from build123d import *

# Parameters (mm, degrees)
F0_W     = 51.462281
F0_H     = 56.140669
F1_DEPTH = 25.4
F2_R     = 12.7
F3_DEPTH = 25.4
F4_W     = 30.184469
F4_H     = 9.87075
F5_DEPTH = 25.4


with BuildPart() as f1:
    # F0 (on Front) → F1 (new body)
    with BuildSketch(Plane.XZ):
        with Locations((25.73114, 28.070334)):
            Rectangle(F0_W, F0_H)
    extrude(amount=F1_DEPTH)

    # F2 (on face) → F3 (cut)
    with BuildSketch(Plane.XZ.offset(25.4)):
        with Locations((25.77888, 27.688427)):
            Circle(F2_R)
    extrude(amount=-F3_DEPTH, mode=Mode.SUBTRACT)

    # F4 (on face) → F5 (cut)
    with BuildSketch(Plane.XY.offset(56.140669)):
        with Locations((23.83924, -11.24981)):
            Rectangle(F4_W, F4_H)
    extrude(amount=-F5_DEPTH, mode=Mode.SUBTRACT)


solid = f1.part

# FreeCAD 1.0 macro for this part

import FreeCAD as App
import Part
import Sketcher
Q = App.Units.Quantity

doc = App.newDocument("Part")
params = doc.addObject("Spreadsheet::Sheet", "Params")
for row, (alias, value) in enumerate([
    ("pad1_length", "1 in"),
    ("sketch2_diameter", "1 in"),
    ("pocket1_length", "1 in"),
    ("pocket2_length", "1 in"),
], start=1):
    params.set(f"A{row}", alias)
    params.set(f"B{row}", "=" + value)
    params.setAlias(f"B{row}", alias)

body = doc.addObject("PartDesign::Body", "Body")

# Sketch on XZ plane
sketch1 = body.newObject("Sketcher::SketchObject", "Sketch")
sketch1.AttachmentSupport = (doc.getObject("XZ_Plane"), [""])
sketch1.MapMode = "FlatFace"
sketch1.addGeometry(Part.LineSegment(App.Vector(0, 56.140668, 0), App.Vector(0, 0, 0)), False)
sketch1.addGeometry(Part.LineSegment(App.Vector(0, 0, 0), App.Vector(51.46228, 0, 0)), False)
sketch1.addGeometry(Part.LineSegment(App.Vector(51.46228, 0, 0), App.Vector(51.46228, 56.140668, 0)), False)
sketch1.addGeometry(Part.LineSegment(App.Vector(51.46228, 56.140668, 0), App.Vector(0, 56.140668, 0)), False)
sketch1.addConstraint(Sketcher.Constraint("Coincident", 0, 2, 1, 1))
sketch1.addConstraint(Sketcher.Constraint("Coincident", 1, 2, 2, 1))
sketch1.addConstraint(Sketcher.Constraint("Coincident", 2, 2, 3, 1))
sketch1.addConstraint(Sketcher.Constraint("Coincident", 3, 2, 0, 1))
sketch1.addConstraint(Sketcher.Constraint("Vertical", 0))
sketch1.addConstraint(Sketcher.Constraint("Horizontal", 1))
sketch1.addConstraint(Sketcher.Constraint("Vertical", 2))
sketch1.addConstraint(Sketcher.Constraint("Horizontal", 3))
sketch1.addConstraint(Sketcher.Constraint("Coincident", 0, 2, -1, 1))
sketch1.addConstraint(Sketcher.Constraint("DistanceX", 1, 1, 1, 2, 51.462281))
sketch1.addConstraint(Sketcher.Constraint("DistanceY", 0, 2, 0, 1, 56.140669))
pad1 = body.newObject("PartDesign::Pad", "Pad")
pad1.Profile = sketch1
pad1.setExpression("Length", "Params.pad1_length")

# Sketch on XZ plane
sketch2 = body.newObject("Sketcher::SketchObject", "Sketch001")
sketch2.AttachmentSupport = (doc.getObject("XZ_Plane"), [""])
sketch2.MapMode = "FlatFace"
sketch2.AttachmentOffset = App.Placement(App.Vector(0, 0, 1 * 25.4), App.Rotation())
sketch2.addGeometry(Part.Circle(App.Vector(25.77888, 27.688427, 0), App.Vector(0, 0, 1), 12.7), False)
sketch2.addConstraint(Sketcher.Constraint("Diameter", 0, Q("1 in")))
sketch2.addConstraint(Sketcher.Constraint("DistanceX", -1, 1, 0, 3, 25.77888))
sketch2.addConstraint(Sketcher.Constraint("DistanceY", -1, 1, 0, 3, 27.688427))
sketch2.setExpression("Constraints[0]", "Params.sketch2_diameter")
pocket1 = body.newObject("PartDesign::Pocket", "Pocket")
pocket1.Profile = sketch2
pocket1.setExpression("Length", "Params.pocket1_length")

# Sketch on XY plane
sketch3 = body.newObject("Sketcher::SketchObject", "Sketch002")
sketch3.AttachmentSupport = (doc.getObject("XY_Plane"), [""])
sketch3.MapMode = "FlatFace"
sketch3.AttachmentOffset = App.Placement(App.Vector(0, 0, 56.140669), App.Rotation())
sketch3.addGeometry(Part.LineSegment(App.Vector(8.747006, -6.314435, 0), App.Vector(8.747006, -16.185185, 0)), False)
sketch3.addGeometry(Part.LineSegment(App.Vector(8.747006, -16.185185, 0), App.Vector(38.931475, -16.185185, 0)), False)
sketch3.addGeometry(Part.LineSegment(App.Vector(38.931475, -16.185185, 0), App.Vector(38.931475, -6.314435, 0)), False)
sketch3.addGeometry(Part.LineSegment(App.Vector(38.931475, -6.314435, 0), App.Vector(8.747006, -6.314435, 0)), False)
sketch3.addConstraint(Sketcher.Constraint("Coincident", 0, 2, 1, 1))
sketch3.addConstraint(Sketcher.Constraint("Coincident", 1, 2, 2, 1))
sketch3.addConstraint(Sketcher.Constraint("Coincident", 2, 2, 3, 1))
sketch3.addConstraint(Sketcher.Constraint("Coincident", 3, 2, 0, 1))
sketch3.addConstraint(Sketcher.Constraint("Vertical", 0))
sketch3.addConstraint(Sketcher.Constraint("Horizontal", 1))
sketch3.addConstraint(Sketcher.Constraint("Vertical", 2))
sketch3.addConstraint(Sketcher.Constraint("Horizontal", 3))
sketch3.addConstraint(Sketcher.Constraint("DistanceY", 2, 2, -1, 1, Q("0.2485998 in")))
sketch3.addConstraint(Sketcher.Constraint("DistanceX", 1, 1, 1, 2, 30.184469))
sketch3.addConstraint(Sketcher.Constraint("DistanceY", 0, 2, 0, 1, 9.87075))
sketch3.addConstraint(Sketcher.Constraint("DistanceX", -1, 1, 0, 2, 8.747006))
pocket2 = body.newObject("PartDesign::Pocket", "Pocket001")
pocket2.Profile = sketch3
pocket2.setExpression("Length", "Params.pocket2_length")

doc.recompute()
